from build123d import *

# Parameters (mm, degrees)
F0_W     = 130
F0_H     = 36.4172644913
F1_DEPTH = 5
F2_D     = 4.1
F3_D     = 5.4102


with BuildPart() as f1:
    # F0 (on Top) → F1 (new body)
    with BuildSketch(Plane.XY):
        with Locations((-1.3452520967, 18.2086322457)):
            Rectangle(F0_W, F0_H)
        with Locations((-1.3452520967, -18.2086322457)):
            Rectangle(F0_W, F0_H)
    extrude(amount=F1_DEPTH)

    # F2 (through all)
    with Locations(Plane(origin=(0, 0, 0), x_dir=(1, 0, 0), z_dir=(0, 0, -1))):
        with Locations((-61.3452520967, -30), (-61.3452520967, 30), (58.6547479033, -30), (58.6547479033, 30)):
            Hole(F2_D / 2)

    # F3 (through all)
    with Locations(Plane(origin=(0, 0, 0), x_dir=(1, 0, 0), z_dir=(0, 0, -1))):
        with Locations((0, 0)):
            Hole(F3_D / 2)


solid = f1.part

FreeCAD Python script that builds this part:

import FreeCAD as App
import Part
import Sketcher

V = App.Vector
Q = App.Units.Quantity

doc = App.newDocument("Part")
params = doc.addObject("Spreadsheet::Sheet", "Params")
for row, (alias, value) in enumerate([
    ("sketch1_width", "130 mm"),
    ("pad1_length", "5 mm"),
    ("sketch2_diameter", "4.1 mm"),
    ("hole_diameter", "4.1 mm"),
    ("hole2_diameter", "5.4102 mm"),
], start=1):
    params.set(f"A{row}", alias)
    params.set(f"B{row}", "=" + value)
    params.setAlias(f"B{row}", alias)

body = doc.addObject("PartDesign::Body", "Body")

# Sketch on XY plane
sketch1 = doc.addObject("Sketcher::SketchObject", "Sketch")
body.addObject(sketch1)
sketch1.AttachmentSupport = (doc.XY_Plane, [""])
sketch1.MapMode = "FlatFace"
sketch1.addGeometry(Part.LineSegment(V(-66, 36, 0), V(-66, -36, 0)), False)
sketch1.addGeometry(Part.LineSegment(V(-66, -36, 0), V(64, -36, 0)), False)
sketch1.addGeometry(Part.LineSegment(V(64, -36, 0), V(64, 36, 0)), False)
sketch1.addGeometry(Part.LineSegment(V(64, 36, 0), V(-66, 36, 0)), False)
sketch1.addConstraint(Sketcher.Constraint("Coincident", 0, 2, 1, 1))
sketch1.addConstraint(Sketcher.Constraint("Coincident", 1, 2, 2, 1))
sketch1.addConstraint(Sketcher.Constraint("Coincident", 2, 2, 3, 1))
sketch1.addConstraint(Sketcher.Constraint("Coincident", 3, 2, 0, 1))
sketch1.addConstraint(Sketcher.Constraint("Vertical", 0))
sketch1.addConstraint(Sketcher.Constraint("Horizontal", 1))
sketch1.addConstraint(Sketcher.Constraint("Vertical", 2))
sketch1.addConstraint(Sketcher.Constraint("Horizontal", 3))
sketch1.addConstraint(Sketcher.Constraint("DistanceX", 1, 1, 1, 2, Q("130 mm")))
sketch1.addConstraint(Sketcher.Constraint("DistanceY", 0, 2, 0, 1, Q("72.834529 mm")))
sketch1.addConstraint(Sketcher.Constraint("DistanceX", 0, 2, -1, 1, Q("66.345252 mm")))
sketch1.addConstraint(Sketcher.Constraint("DistanceY", 0, 2, -1, 1, Q("36.417264 mm")))
sketch1.setExpression("Constraints[8]", "Params.sketch1_width")
pad1 = doc.addObject("PartDesign::Pad", "Pad")
body.addObject(pad1)
pad1.Profile = sketch1
pad1.setExpression("Length", "Params.pad1_length")

# Sketch on XY plane
sketch2 = doc.addObject("Sketcher::SketchObject", "Sketch001")
body.addObject(sketch2)
sketch2.AttachmentSupport = (doc.XY_Plane, [""])
sketch2.MapMode = "FlatFace"
sketch2.addGeometry(Part.Circle(V(-61.3, 30, 0), V(0, 0, 1), 2), False)
sketch2.addGeometry(Part.Circle(V(-61.3, -30, 0), V(0, 0, 1), 2), False)
sketch2.addGeometry(Part.Circle(V(58.7, 30, 0), V(0, 0, 1), 2), False)
sketch2.addGeometry(Part.Circle(V(58.7, -30, 0), V(0, 0, 1), 2), False)
sketch2.addConstraint(Sketcher.Constraint("Equal", 0, 1))
sketch2.addConstraint(Sketcher.Constraint("Equal", 1, 2))
sketch2.addConstraint(Sketcher.Constraint("Equal", 2, 3))
sketch2.addConstraint(Sketcher.Constraint("Symmetric", 0, 3, 1, 3, -1))
sketch2.addConstraint(Sketcher.Constraint("Symmetric", 2, 3, 3, 3, -1))
sketch2.addConstraint(Sketcher.Constraint("Horizontal", 0, 3, 2, 3))
sketch2.addConstraint(Sketcher.Constraint("Diameter", 0, Q("4.1 mm")))
sketch2.addConstraint(Sketcher.Constraint("DistanceY", -1, 1, 0, 3, Q("30 mm")))
sketch2.addConstraint(Sketcher.Constraint("DistanceX", 0, 3, 2, 3, Q("120 mm")))
sketch2.addConstraint(Sketcher.Constraint("DistanceX", 0, 3, -1, 1, Q("61.345252 mm")))
sketch2.setExpression("Constraints[6]", "Params.sketch2_diameter")
doc.recompute()
hole = doc.addObject("PartDesign::Hole", "Hole")
body.addObject(hole)
hole.Profile = sketch2
hole.ThreadType = "None"
hole.setExpression("Diameter", "Params.hole_diameter")
hole.DepthType = "ThroughAll"
hole.Reversed = True

# Sketch on XY plane
sketch3 = doc.addObject("Sketcher::SketchObject", "Sketch002")
body.addObject(sketch3)
sketch3.AttachmentSupport = (doc.XY_Plane, [""])
sketch3.MapMode = "FlatFace"
sketch3.addGeometry(Part.Circle(V(0, 0, 0), V(0, 0, 1), 2.7), False)
sketch3.addConstraint(Sketcher.Constraint("Coincident", 0, 3, -1, 1))
sketch3.addConstraint(Sketcher.Constraint("Diameter", 0, Q("5.4102 mm")))
doc.recompute()
hole2 = doc.addObject("PartDesign::Hole", "Hole001")
body.addObject(hole2)
hole2.Profile = sketch3
hole2.ThreadType = "None"
hole2.setExpression("Diameter", "Params.hole2_diameter")
hole2.DepthType = "ThroughAll"
hole2.Reversed = True

doc.recompute()
